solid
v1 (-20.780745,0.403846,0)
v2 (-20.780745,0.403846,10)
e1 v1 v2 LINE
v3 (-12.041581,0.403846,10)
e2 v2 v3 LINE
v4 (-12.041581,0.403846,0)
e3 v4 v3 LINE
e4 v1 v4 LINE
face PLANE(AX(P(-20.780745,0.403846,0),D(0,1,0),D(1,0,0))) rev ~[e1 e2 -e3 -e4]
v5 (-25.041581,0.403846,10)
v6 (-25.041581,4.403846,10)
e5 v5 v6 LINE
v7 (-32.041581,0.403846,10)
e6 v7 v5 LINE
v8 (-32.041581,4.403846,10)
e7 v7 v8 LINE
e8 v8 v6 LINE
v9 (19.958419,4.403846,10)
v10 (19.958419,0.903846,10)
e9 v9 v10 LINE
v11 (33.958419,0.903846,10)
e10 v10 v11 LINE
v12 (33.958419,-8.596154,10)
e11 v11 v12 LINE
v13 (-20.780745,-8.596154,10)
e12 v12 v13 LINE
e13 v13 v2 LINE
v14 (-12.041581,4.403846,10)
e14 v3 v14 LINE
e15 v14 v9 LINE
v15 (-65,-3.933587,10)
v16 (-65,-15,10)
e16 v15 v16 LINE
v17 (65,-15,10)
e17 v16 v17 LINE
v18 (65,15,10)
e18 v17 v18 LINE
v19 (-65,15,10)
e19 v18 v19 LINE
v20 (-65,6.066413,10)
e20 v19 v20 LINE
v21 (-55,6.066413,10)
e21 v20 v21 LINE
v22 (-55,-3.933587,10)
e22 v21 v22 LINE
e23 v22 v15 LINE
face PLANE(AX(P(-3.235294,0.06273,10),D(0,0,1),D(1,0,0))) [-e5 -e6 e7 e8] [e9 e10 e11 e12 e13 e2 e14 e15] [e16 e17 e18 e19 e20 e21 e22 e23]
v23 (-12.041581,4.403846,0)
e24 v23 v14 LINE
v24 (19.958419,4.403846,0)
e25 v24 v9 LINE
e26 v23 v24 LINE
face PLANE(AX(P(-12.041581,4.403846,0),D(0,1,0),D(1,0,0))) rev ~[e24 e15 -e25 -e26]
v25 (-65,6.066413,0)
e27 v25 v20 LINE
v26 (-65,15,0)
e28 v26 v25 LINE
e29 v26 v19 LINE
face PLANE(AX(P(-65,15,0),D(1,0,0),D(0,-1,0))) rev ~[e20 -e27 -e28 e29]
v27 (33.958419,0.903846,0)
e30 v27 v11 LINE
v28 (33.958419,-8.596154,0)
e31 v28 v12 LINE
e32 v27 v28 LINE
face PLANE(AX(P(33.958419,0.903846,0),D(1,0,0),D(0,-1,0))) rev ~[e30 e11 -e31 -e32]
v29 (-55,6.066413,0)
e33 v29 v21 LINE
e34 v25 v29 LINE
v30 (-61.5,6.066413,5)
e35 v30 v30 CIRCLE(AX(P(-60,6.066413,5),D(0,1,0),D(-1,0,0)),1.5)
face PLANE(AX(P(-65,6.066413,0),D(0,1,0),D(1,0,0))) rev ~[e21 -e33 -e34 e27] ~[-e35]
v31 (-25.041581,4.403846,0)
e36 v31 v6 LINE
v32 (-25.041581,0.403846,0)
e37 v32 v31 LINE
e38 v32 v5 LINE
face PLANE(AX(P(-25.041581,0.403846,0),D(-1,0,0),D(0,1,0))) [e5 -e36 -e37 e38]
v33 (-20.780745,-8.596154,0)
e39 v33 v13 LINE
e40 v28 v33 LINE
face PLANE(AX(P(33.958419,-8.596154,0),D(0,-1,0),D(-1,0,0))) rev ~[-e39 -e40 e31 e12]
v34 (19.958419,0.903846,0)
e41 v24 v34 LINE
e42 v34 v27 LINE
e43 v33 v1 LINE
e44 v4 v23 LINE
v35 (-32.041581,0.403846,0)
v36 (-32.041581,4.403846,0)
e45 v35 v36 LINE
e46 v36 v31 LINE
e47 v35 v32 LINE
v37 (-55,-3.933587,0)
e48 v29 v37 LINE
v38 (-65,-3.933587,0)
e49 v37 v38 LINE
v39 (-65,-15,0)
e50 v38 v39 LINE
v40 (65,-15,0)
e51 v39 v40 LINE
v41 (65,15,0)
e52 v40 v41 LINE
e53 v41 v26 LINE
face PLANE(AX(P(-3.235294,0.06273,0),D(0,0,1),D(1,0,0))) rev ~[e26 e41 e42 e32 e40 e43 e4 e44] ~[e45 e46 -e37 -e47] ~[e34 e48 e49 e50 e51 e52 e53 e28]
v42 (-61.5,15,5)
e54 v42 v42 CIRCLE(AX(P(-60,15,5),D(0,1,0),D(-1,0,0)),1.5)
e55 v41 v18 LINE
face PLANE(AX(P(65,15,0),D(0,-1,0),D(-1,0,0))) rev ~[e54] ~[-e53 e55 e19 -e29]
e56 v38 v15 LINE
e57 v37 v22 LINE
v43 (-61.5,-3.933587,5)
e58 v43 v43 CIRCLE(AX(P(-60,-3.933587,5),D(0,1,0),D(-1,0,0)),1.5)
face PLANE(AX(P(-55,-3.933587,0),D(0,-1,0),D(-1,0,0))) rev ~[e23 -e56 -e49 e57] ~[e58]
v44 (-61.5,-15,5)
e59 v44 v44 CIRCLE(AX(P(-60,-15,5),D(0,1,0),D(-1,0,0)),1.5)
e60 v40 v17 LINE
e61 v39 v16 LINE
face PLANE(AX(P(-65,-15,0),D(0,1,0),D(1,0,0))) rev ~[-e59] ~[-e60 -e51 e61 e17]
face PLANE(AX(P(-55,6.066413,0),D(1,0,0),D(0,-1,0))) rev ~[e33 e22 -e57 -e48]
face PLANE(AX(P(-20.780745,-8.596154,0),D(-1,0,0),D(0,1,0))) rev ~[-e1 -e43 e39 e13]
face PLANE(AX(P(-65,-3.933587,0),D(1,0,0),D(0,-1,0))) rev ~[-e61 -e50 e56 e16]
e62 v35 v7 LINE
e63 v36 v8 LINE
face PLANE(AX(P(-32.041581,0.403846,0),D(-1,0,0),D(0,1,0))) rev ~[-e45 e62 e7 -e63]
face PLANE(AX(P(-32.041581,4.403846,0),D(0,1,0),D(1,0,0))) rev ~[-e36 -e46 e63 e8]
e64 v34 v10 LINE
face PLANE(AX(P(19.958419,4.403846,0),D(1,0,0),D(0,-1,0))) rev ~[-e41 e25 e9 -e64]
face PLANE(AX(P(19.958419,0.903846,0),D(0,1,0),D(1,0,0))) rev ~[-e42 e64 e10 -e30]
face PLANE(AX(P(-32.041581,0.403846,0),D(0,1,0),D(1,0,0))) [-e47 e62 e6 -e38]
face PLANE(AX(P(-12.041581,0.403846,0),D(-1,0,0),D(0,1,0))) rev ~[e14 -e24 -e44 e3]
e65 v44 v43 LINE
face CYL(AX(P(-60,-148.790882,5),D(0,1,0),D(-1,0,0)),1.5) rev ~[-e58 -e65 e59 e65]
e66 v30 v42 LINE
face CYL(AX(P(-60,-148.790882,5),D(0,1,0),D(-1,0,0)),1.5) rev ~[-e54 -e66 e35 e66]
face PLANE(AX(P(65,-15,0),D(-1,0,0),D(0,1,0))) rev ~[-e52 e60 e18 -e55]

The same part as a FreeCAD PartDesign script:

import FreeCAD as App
import Part
import Sketcher

V = App.Vector


def add_polygon(sketch, points):
    """Adds a closed chain of lines whose ends are joined by coincident constraints."""
    first, n = sketch.GeometryCount, len(points)
    for a, b in zip(points, points[1:] + points[:1]):
        sketch.addGeometry(Part.LineSegment(App.Vector(*a, 0), App.Vector(*b, 0)), False)
    for i in range(n):
        sketch.addConstraint(Sketcher.Constraint("Coincident", first + i, 2, first + (i + 1) % n, 1))

doc = App.newDocument("Part")
body = doc.addObject("PartDesign::Body", "Body")

sketch1 = body.newObject("Sketcher::SketchObject", "Sketch")
sketch1.AttachmentSupport = (doc.getObject("XY_Plane"), [""])
sketch1.MapMode = "FlatFace"
add_polygon(sketch1, [(-65, 15), (-65, 6.1), (-55, 6.1), (-55, -3.9), (-65, -3.9), (-65, -15), (65, -15), (65, 15)])
add_polygon(sketch1, [(-25, 0.4), (-32, 0.4), (-32, 4.4), (-25, 4.4)])
add_polygon(sketch1, [(-20.8, -8.6), (-20.8, 0.4), (-12, 0.4), (-12, 4.4), (20, 4.4), (20, 0.9), (34, 0.9), (34, -8.6)])
sketch1.addConstraint([
    Sketcher.Constraint("Vertical", 0),
    Sketcher.Constraint("Horizontal", 1),
    Sketcher.Constraint("Vertical", 2),
    Sketcher.Constraint("Horizontal", 3),
    Sketcher.Constraint("Vertical", 4),
    Sketcher.Constraint("Horizontal", 5),
    Sketcher.Constraint("Vertical", 6),
    Sketcher.Constraint("Horizontal", 7),
    Sketcher.Constraint("Horizontal", 8),
    Sketcher.Constraint("Vertical", 9),
    Sketcher.Constraint("Horizontal", 10),
    Sketcher.Constraint("Vertical", 11),
    Sketcher.Constraint("Vertical", 12),
    Sketcher.Constraint("Horizontal", 13),
    Sketcher.Constraint("Vertical", 14),
    Sketcher.Constraint("Horizontal", 15),
    Sketcher.Constraint("Vertical", 16),
    Sketcher.Constraint("Horizontal", 17),
    Sketcher.Constraint("Vertical", 18),
    Sketcher.Constraint("Horizontal", 19),
    Sketcher.Constraint("Symmetric", 4, 2, 6, 2, -1, 1),
    Sketcher.Constraint("Horizontal", 11, 2, 12, 2),
    Sketcher.Constraint("Horizontal", 10, 2, 14, 2),
    Sketcher.Constraint("Vertical", 0, 2, 3, 2),
    Sketcher.Constraint("Equal", 3, 2),
    Sketcher.Constraint("DistanceX", 1, 1, 1, 2, 10.0),
    Sketcher.Constraint("DistanceX", 5, 1, 5, 2, 130.0),
    Sketcher.Constraint("DistanceX", 8, 2, 8, 1, 7.0),
    Sketcher.Constraint("DistanceX", 15, 1, 15, 2, 32.0),
    Sketcher.Constraint("DistanceX", 17, 1, 17, 2, 14.0),
    Sketcher.Constraint("DistanceY", 6, 1, 6, 2, 30.0),
    Sketcher.Constraint("DistanceY", 9, 1, 9, 2, 4.0),
    Sketcher.Constraint("DistanceY", 12, 1, 12, 2, 9.0),
    Sketcher.Constraint("DistanceY", 16, 2, 16, 1, 3.5),
    Sketcher.Constraint("DistanceX", 11, 2, 13, 2, 13.0),
    Sketcher.Constraint("DistanceX", 13, 1, 13, 2, 8.739164),
    Sketcher.Constraint("DistanceY", 0, 2, 0, 1, 8.933587),
    Sketcher.Constraint("DistanceX", 8, 2, -1, 1, 32.041581),
    Sketcher.Constraint("DistanceY", -1, 1, 8, 2, 0.403846),
])
pad1 = body.newObject("PartDesign::Pad", "Pad")
pad1.Profile = sketch1
pad1.Length = 10

sketch2 = body.newObject("Sketcher::SketchObject", "Sketch001")
sketch2.AttachmentSupport = (doc.getObject("XZ_Plane"), [""])
sketch2.MapMode = "FlatFace"
sketch2.AttachmentOffset = App.Placement(V(0, 0, 15), App.Rotation())
sketch2.addGeometry(Part.Circle(V(-60, 5, 0), V(0, 0, 1), 1.5), False)
sketch2.addConstraint([
    Sketcher.Constraint("Diameter", 0, 3.0),
    Sketcher.Constraint("DistanceX", 0, 3, -1, 1, 60.0),
    Sketcher.Constraint("DistanceY", -1, 1, 0, 3, 5.0),
])
doc.recompute()
hole = body.newObject("PartDesign::Hole", "Hole")
hole.Profile = sketch2
hole.ThreadType = "None"
hole.Diameter = 3
hole.DepthType = "ThroughAll"

doc.recompute()
